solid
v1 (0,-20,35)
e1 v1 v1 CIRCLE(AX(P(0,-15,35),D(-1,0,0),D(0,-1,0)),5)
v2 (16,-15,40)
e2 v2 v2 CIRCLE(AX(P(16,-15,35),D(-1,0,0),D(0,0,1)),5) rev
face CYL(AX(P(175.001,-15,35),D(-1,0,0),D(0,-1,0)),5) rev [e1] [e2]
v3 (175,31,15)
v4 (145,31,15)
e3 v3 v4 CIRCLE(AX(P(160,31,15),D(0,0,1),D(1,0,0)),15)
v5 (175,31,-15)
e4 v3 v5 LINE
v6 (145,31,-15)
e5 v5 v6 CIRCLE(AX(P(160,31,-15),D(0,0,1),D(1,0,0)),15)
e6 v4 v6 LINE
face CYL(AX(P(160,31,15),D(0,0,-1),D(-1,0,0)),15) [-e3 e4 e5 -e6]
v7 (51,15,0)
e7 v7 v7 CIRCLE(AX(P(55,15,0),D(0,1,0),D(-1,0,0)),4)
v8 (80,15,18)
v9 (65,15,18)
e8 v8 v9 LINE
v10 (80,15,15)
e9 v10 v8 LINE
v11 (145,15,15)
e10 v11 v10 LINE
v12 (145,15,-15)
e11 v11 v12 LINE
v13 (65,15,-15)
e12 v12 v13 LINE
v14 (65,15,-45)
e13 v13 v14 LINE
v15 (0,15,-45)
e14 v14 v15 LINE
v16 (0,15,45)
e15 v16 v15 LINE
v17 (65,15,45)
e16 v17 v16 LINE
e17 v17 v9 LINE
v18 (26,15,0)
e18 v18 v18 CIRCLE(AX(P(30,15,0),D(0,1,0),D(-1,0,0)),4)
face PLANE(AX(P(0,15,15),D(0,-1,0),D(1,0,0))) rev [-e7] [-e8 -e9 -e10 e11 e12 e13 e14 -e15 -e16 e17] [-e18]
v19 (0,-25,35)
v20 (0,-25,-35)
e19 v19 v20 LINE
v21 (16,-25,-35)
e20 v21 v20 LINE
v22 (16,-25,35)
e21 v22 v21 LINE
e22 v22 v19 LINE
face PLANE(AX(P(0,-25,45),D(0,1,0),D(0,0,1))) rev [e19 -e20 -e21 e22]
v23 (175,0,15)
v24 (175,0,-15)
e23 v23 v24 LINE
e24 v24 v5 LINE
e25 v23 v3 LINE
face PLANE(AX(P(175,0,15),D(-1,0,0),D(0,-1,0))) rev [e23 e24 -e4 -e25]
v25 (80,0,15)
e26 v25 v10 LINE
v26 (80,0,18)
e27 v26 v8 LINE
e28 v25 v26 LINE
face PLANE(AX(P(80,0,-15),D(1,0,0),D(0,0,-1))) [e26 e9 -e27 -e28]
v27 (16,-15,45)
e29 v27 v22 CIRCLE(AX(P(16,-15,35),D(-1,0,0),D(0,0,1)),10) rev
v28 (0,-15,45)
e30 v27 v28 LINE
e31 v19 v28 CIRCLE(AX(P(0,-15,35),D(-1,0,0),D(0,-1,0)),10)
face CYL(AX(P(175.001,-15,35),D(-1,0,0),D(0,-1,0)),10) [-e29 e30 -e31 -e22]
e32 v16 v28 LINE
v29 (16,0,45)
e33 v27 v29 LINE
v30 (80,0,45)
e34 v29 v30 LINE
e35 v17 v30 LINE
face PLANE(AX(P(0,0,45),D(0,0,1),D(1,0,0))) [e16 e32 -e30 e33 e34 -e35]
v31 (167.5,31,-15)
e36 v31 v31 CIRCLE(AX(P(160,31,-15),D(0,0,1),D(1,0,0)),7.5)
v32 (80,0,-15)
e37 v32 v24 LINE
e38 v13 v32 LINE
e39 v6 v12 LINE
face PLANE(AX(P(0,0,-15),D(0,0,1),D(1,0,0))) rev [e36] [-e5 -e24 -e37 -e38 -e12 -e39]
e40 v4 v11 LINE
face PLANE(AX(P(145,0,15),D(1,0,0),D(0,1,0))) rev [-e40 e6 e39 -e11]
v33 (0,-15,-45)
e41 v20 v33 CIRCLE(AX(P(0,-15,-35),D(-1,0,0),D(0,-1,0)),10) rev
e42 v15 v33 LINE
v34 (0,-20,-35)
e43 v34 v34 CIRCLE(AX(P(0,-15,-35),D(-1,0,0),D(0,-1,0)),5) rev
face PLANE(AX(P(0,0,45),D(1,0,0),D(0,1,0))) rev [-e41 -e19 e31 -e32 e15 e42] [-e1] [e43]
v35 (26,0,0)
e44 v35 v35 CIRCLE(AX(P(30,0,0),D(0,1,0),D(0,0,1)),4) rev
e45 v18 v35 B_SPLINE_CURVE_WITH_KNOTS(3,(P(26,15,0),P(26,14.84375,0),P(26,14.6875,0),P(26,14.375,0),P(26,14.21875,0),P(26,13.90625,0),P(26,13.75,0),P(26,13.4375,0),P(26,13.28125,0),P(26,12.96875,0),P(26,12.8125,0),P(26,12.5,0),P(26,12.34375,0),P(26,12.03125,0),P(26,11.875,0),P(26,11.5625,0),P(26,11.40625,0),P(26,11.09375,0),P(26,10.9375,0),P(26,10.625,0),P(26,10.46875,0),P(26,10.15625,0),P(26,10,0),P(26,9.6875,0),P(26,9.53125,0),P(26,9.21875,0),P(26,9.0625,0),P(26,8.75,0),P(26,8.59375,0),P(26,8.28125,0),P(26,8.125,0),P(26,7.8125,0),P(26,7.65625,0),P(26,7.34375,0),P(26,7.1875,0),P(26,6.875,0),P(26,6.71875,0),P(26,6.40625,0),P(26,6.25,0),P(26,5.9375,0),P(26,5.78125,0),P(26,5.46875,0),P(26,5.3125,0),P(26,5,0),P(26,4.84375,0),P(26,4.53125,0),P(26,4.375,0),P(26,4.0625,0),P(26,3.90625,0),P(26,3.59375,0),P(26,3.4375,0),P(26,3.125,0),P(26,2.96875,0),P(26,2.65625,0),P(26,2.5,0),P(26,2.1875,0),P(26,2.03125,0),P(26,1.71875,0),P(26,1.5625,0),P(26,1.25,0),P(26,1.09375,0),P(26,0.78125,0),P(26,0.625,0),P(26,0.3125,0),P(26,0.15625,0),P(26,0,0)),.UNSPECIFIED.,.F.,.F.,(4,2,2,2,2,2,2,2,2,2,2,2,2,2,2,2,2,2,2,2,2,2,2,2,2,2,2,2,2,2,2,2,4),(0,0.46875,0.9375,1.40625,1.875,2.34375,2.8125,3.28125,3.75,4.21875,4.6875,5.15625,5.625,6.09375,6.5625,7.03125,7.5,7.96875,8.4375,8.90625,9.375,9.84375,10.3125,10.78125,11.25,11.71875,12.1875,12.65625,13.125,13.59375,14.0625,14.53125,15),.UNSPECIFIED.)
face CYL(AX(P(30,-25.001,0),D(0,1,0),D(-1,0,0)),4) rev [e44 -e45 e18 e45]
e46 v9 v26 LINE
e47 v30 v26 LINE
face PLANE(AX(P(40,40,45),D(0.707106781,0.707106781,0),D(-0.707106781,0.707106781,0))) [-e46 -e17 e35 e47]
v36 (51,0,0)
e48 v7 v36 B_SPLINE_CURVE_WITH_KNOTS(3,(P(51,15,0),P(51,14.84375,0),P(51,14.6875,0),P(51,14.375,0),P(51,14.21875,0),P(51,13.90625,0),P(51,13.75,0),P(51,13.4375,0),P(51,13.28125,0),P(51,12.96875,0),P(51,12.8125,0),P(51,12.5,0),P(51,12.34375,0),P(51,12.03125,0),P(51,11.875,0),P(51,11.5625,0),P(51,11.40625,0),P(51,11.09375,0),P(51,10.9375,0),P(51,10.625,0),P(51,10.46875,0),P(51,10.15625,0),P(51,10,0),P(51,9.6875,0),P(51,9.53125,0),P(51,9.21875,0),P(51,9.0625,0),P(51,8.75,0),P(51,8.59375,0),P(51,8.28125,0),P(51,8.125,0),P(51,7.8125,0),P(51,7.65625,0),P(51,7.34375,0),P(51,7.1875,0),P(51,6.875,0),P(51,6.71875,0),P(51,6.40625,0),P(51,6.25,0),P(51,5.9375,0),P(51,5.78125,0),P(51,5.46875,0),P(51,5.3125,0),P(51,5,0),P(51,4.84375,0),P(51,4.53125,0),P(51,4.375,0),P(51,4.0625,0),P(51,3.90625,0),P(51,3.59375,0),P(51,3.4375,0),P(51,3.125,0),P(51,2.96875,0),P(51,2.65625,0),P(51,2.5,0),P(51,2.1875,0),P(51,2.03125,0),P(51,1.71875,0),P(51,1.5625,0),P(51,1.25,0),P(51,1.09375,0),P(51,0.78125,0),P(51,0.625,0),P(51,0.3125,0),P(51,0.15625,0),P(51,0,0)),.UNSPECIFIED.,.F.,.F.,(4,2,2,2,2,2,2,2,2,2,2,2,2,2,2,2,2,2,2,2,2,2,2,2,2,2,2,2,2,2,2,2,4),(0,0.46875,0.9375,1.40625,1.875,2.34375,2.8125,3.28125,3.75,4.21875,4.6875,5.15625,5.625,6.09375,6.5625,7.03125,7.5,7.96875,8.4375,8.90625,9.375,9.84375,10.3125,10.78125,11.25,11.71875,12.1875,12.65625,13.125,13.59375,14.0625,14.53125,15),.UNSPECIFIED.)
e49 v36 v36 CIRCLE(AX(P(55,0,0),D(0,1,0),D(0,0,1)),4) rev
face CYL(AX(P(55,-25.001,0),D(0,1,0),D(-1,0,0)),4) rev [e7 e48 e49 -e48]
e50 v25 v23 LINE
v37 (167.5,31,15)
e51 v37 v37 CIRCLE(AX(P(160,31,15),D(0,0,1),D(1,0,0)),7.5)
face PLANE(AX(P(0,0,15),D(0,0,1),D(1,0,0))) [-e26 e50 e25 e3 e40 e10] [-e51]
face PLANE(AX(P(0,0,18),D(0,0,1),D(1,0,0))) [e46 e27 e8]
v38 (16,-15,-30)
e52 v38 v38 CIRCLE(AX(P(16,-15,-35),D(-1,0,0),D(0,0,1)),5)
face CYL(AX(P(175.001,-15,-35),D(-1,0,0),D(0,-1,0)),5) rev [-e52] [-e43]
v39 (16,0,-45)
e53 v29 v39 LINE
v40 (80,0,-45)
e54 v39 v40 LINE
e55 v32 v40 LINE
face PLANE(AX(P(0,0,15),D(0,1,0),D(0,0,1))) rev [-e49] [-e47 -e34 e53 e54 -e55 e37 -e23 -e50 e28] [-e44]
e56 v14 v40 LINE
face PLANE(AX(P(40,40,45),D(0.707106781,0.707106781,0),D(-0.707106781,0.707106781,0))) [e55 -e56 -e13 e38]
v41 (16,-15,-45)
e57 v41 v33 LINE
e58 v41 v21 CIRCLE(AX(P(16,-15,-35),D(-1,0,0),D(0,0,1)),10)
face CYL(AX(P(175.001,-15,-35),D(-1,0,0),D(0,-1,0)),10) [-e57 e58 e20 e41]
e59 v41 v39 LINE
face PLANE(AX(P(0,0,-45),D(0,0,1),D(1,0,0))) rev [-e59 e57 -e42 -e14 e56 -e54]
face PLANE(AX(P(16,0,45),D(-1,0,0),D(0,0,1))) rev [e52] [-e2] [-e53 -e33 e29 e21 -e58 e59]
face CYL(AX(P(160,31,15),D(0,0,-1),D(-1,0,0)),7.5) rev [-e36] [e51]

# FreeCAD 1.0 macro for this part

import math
import FreeCAD as App
import Part
import Sketcher

V = App.Vector
Q = App.Units.Quantity

doc = App.newDocument("Part")
params = doc.addObject("Spreadsheet::Sheet", "Params")
for row, (alias, value) in enumerate([
    ("sketch1_diameter", "15 mm"),
    ("sketch1_radius", "15 mm"),
    ("sketch1_width", "65 mm"),
    ("sketch1_height", "15 mm"),
    ("sketch1_height2", "31 mm"),
    ("pad1_length", "30 mm"),
    ("sketch2_width", "65 mm"),
    ("sketch2_width2", "16 mm"),
    ("sketch2_width3", "64 mm"),
    ("sketch2_height", "40 mm"),
    ("sketch2_height2", "25 mm"),
    ("pad2_length", "90 mm"),
    ("sketch3_width", "15 mm"),
    ("pad3_length", "18 mm"),
    ("pad3_length2", "15 mm"),
    ("sketch4_diameter", "8 mm"),
    ("sketch5_diameter", "8 mm"),
    ("sketch6_diameter", "10 mm"),
    ("sketch7_radius", "10 mm"),
    ("sketch8_diameter", "10 mm"),
    ("sketch9_radius", "10 mm"),
], start=1):
    params.set(f"A{row}", alias)
    params.set(f"B{row}", "=" + value)
    params.setAlias(f"B{row}", alias)

body = doc.addObject("PartDesign::Body", "Body")

sketch1 = doc.addObject("Sketcher::SketchObject", "Sketch")
body.addObject(sketch1)
sketch1.AttachmentSupport = (doc.XY_Plane, [""])
sketch1.MapMode = "FlatFace"
sketch1.addGeometry([
    Part.LineSegment(V(145, 15, 0), V(80, 15, 0)),
    Part.LineSegment(V(80, 15, 0), V(80, 0, 0)),
    Part.LineSegment(V(80, 0, 0), V(175, 0, 0)),
    Part.LineSegment(V(175, 0, 0), V(175, 31, 0)),
    Part.ArcOfCircle(Part.Circle(V(160, 31, 0), V(0, 0, 1), 15), math.radians(0), math.radians(180)),
    Part.LineSegment(V(145, 31, 0), V(145, 15, 0)),
    Part.Circle(V(160, 31, 0), V(0, 0, 1), 8),
], False)
sketch1.addConstraint([
    Sketcher.Constraint("Coincident", 0, 2, 1, 1),
    Sketcher.Constraint("Coincident", 1, 2, 2, 1),
    Sketcher.Constraint("Coincident", 2, 2, 3, 1),
    Sketcher.Constraint("Tangent", 3, 2, 4, 1),
    Sketcher.Constraint("Tangent", 4, 2, 5, 1),
    Sketcher.Constraint("Coincident", 5, 2, 0, 1),
    Sketcher.Constraint("Horizontal", 0),
    Sketcher.Constraint("Vertical", 1),
    Sketcher.Constraint("Horizontal", 2),
    Sketcher.Constraint("Vertical", 3),
    Sketcher.Constraint("Vertical", 5),
    Sketcher.Constraint("Coincident", 6, 3, 4, 3),
    Sketcher.Constraint("PointOnObject", 1, 2, -1),
    Sketcher.Constraint("Diameter", 6, Q("15 mm")),
    Sketcher.Constraint("Radius", 4, Q("15 mm")),
    Sketcher.Constraint("DistanceX", 0, 2, 0, 1, Q("65 mm")),
    Sketcher.Constraint("DistanceY", 1, 2, 1, 1, Q("15 mm")),
    Sketcher.Constraint("DistanceY", 3, 1, 3, 2, Q("31 mm")),
    Sketcher.Constraint("DistanceX", -1, 1, 4, 3, Q("160 mm")),
])
sketch1.setExpression("Constraints[13]", "Params.sketch1_diameter")
sketch1.setExpression("Constraints[14]", "Params.sketch1_radius")
sketch1.setExpression("Constraints[15]", "Params.sketch1_width")
sketch1.setExpression("Constraints[16]", "Params.sketch1_height")
sketch1.setExpression("Constraints[17]", "Params.sketch1_height2")
pad1 = doc.addObject("PartDesign::Pad", "Pad")
body.addObject(pad1)
pad1.Profile = sketch1
pad1.setExpression("Length", "Params.pad1_length")
pad1.Midplane = True
body2 = doc.addObject("PartDesign::Body", "Body001")

sketch2 = doc.addObject("Sketcher::SketchObject", "Sketch001")
body2.addObject(sketch2)
sketch2.AttachmentSupport = (doc.getObject("XY_Plane001"), [""])
sketch2.MapMode = "FlatFace"
sketch2.addGeometry([
    Part.LineSegment(V(65, 15, 0), V(0, 15, 0)),
    Part.LineSegment(V(0, 15, 0), V(0, -25, 0)),
    Part.LineSegment(V(0, -25, 0), V(16, -25, 0)),
    Part.LineSegment(V(16, -25, 0), V(16, 0, 0)),
    Part.LineSegment(V(16, 0, 0), V(80, 0, 0)),
    Part.LineSegment(V(80, 0, 0), V(65, 15, 0)),
], False)
sketch2.addConstraint([
    Sketcher.Constraint("Coincident", 0, 2, 1, 1),
    Sketcher.Constraint("Coincident", 1, 2, 2, 1),
    Sketcher.Constraint("Coincident", 2, 2, 3, 1),
    Sketcher.Constraint("Coincident", 3, 2, 4, 1),
    Sketcher.Constraint("Coincident", 4, 2, 5, 1),
    Sketcher.Constraint("Coincident", 5, 2, 0, 1),
    Sketcher.Constraint("Horizontal", 0),
    Sketcher.Constraint("Vertical", 1),
    Sketcher.Constraint("Horizontal", 2),
    Sketcher.Constraint("Vertical", 3),
    Sketcher.Constraint("Horizontal", 4),
    Sketcher.Constraint("PointOnObject", 0, 2, -2),
    Sketcher.Constraint("PointOnObject", 3, 2, -1),
    Sketcher.Constraint("DistanceX", 0, 2, 0, 1, Q("65 mm")),
    Sketcher.Constraint("DistanceX", 2, 1, 2, 2, Q("16 mm")),
    Sketcher.Constraint("DistanceX", 4, 1, 4, 2, Q("64 mm")),
    Sketcher.Constraint("DistanceY", 1, 2, 1, 1, Q("40 mm")),
    Sketcher.Constraint("DistanceY", 3, 1, 3, 2, Q("25 mm")),
])
sketch2.setExpression("Constraints[13]", "Params.sketch2_width")
sketch2.setExpression("Constraints[14]", "Params.sketch2_width2")
sketch2.setExpression("Constraints[15]", "Params.sketch2_width3")
sketch2.setExpression("Constraints[16]", "Params.sketch2_height")
sketch2.setExpression("Constraints[17]", "Params.sketch2_height2")
pad2 = doc.addObject("PartDesign::Pad", "Pad001")
body2.addObject(pad2)
pad2.Profile = sketch2
pad2.setExpression("Length", "Params.pad2_length")
pad2.Midplane = True
body.AllowCompound = True
doc.recompute()

boolean = doc.addObject("PartDesign::Boolean", "Boolean")
body.addObject(boolean)
boolean.Type = "Fuse"
boolean.addObjects([body2])

sketch3 = doc.addObject("Sketcher::SketchObject", "Sketch002")
body.addObject(sketch3)
sketch3.AttachmentSupport = (doc.XY_Plane, [""])
sketch3.MapMode = "FlatFace"
sketch3.addGeometry([
    Part.LineSegment(V(80, 15, 0), V(65, 15, 0)),
    Part.LineSegment(V(65, 15, 0), V(80, 0, 0)),
    Part.LineSegment(V(80, 0, 0), V(80, 15, 0)),
], False)
sketch3.addConstraint([
    Sketcher.Constraint("Coincident", 0, 2, 1, 1),
    Sketcher.Constraint("Coincident", 1, 2, 2, 1),
    Sketcher.Constraint("Coincident", 2, 2, 0, 1),
    Sketcher.Constraint("Horizontal", 0),
    Sketcher.Constraint("Vertical", 2),
    Sketcher.Constraint("PointOnObject", 1, 2, -1),
    Sketcher.Constraint("Equal", 0, 2),
    Sketcher.Constraint("DistanceX", 0, 2, 0, 1, Q("15 mm")),
    Sketcher.Constraint("DistanceX", -1, 1, 0, 2, Q("65 mm")),
])
sketch3.setExpression("Constraints[7]", "Params.sketch3_width")
pad3 = doc.addObject("PartDesign::Pad", "Pad002")
body.addObject(pad3)
pad3.Profile = sketch3
pad3.Type = "TwoLengths"
pad3.setExpression("Length", "Params.pad3_length")
pad3.setExpression("Length2", "Params.pad3_length2")

sketch4 = doc.addObject("Sketcher::SketchObject", "Sketch003")
body.addObject(sketch4)
sketch4.AttachmentSupport = (doc.XZ_Plane, [""])
sketch4.MapMode = "FlatFace"
sketch4.AttachmentOffset = App.Placement(V(0, 0, -15), App.Rotation())
sketch4.addGeometry(Part.Circle(V(55, 0, 0), V(0, 0, 1), 4), False)
sketch4.addConstraint([
    Sketcher.Constraint("PointOnObject", 0, 3, -1),
    Sketcher.Constraint("Diameter", 0, Q("8 mm")),
    Sketcher.Constraint("DistanceX", -1, 1, 0, 3, Q("55 mm")),
])
sketch4.setExpression("Constraints[1]", "Params.sketch4_diameter")
pocket1 = doc.addObject("PartDesign::Pocket", "Pocket")
body.addObject(pocket1)
pocket1.Profile = sketch4
pocket1.Type = "UpToFirst"
pocket1.Reversed = True

sketch5 = doc.addObject("Sketcher::SketchObject", "Sketch004")
body.addObject(sketch5)
sketch5.AttachmentSupport = (doc.XZ_Plane, [""])
sketch5.MapMode = "FlatFace"
sketch5.AttachmentOffset = App.Placement(V(0, 0, -15), App.Rotation())
sketch5.addGeometry(Part.Circle(V(30, 0, 0), V(0, 0, 1), 4), False)
sketch5.addConstraint([
    Sketcher.Constraint("PointOnObject", 0, 3, -1),
    Sketcher.Constraint("Diameter", 0, Q("8 mm")),
    Sketcher.Constraint("DistanceX", -1, 1, 0, 3, Q("30 mm")),
])
sketch5.setExpression("Constraints[1]", "Params.sketch5_diameter")
pocket2 = doc.addObject("PartDesign::Pocket", "Pocket001")
body.addObject(pocket2)
pocket2.Profile = sketch5
pocket2.Type = "UpToFirst"
pocket2.Reversed = True

sketch6 = doc.addObject("Sketcher::SketchObject", "Sketch005")
body.addObject(sketch6)
sketch6.AttachmentSupport = (doc.YZ_Plane, [""])
sketch6.MapMode = "FlatFace"
sketch6.addGeometry(Part.Circle(V(-15, 35, 0), V(0, 0, 1), 5), False)
sketch6.addConstraint([
    Sketcher.Constraint("Diameter", 0, Q("10 mm")),
    Sketcher.Constraint("DistanceX", 0, 3, -1, 1, Q("15 mm")),
    Sketcher.Constraint("DistanceY", -1, 1, 0, 3, Q("35 mm")),
])
sketch6.setExpression("Constraints[0]", "Params.sketch6_diameter")
pocket3 = doc.addObject("PartDesign::Pocket", "Pocket002")
body.addObject(pocket3)
pocket3.Profile = sketch6
pocket3.Type = "UpToFirst"
pocket3.Reversed = True

sketch7 = doc.addObject("Sketcher::SketchObject", "Sketch006")
body.addObject(sketch7)
sketch7.AttachmentSupport = (doc.YZ_Plane, [""])
sketch7.MapMode = "FlatFace"
sketch7.addGeometry([
    Part.LineSegment(V(-25, 45, 0), V(-15, 45, 0)),
    Part.ArcOfCircle(Part.Circle(V(-15, 35, 0), V(0, 0, 1), 10), math.radians(90), math.radians(180)),
    Part.LineSegment(V(-25, 35, 0), V(-25, 45, 0)),
], False)
sketch7.addConstraint([
    Sketcher.Constraint("Tangent", 0, 2, 1, 1),
    Sketcher.Constraint("Tangent", 1, 2, 2, 1),
    Sketcher.Constraint("Coincident", 2, 2, 0, 1),
    Sketcher.Constraint("Horizontal", 0),
    Sketcher.Constraint("Vertical", 2),
    Sketcher.Constraint("Radius", 1, Q("10 mm")),
    Sketcher.Constraint("DistanceX", 1, 3, -1, 1, Q("15 mm")),
    Sketcher.Constraint("DistanceY", -1, 1, 1, 3, Q("35 mm")),
])
sketch7.setExpression("Constraints[5]", "Params.sketch7_radius")
pocket4 = doc.addObject("PartDesign::Pocket", "Pocket003")
body.addObject(pocket4)
pocket4.Profile = sketch7
pocket4.Type = "UpToFirst"
pocket4.Reversed = True

sketch8 = doc.addObject("Sketcher::SketchObject", "Sketch007")
body.addObject(sketch8)
sketch8.AttachmentSupport = (doc.YZ_Plane, [""])
sketch8.MapMode = "FlatFace"
sketch8.addGeometry(Part.Circle(V(-15, -35, 0), V(0, 0, 1), 5), False)
sketch8.addConstraint([
    Sketcher.Constraint("Diameter", 0, Q("10 mm")),
    Sketcher.Constraint("DistanceX", 0, 3, -1, 1, Q("15 mm")),
    Sketcher.Constraint("DistanceY", 0, 3, -1, 1, Q("35 mm")),
])
sketch8.setExpression("Constraints[0]", "Params.sketch8_diameter")
pocket5 = doc.addObject("PartDesign::Pocket", "Pocket004")
body.addObject(pocket5)
pocket5.Profile = sketch8
pocket5.Type = "UpToFirst"
pocket5.Reversed = True

sketch9 = doc.addObject("Sketcher::SketchObject", "Sketch008")
body.addObject(sketch9)
sketch9.AttachmentSupport = (doc.YZ_Plane, [""])
sketch9.MapMode = "FlatFace"
sketch9.addGeometry([
    Part.LineSegment(V(-25, -45, 0), V(-25, -35, 0)),
    Part.ArcOfCircle(Part.Circle(V(-15, -35, 0), V(0, 0, 1), 10), math.radians(180), math.radians(270)),
    Part.LineSegment(V(-15, -45, 0), V(-25, -45, 0)),
], False)
sketch9.addConstraint([
    Sketcher.Constraint("Tangent", 0, 2, 1, 1),
    Sketcher.Constraint("Tangent", 1, 2, 2, 1),
    Sketcher.Constraint("Coincident", 2, 2, 0, 1),
    Sketcher.Constraint("Vertical", 0),
    Sketcher.Constraint("Horizontal", 2),
    Sketcher.Constraint("Radius", 1, Q("10 mm")),
    Sketcher.Constraint("DistanceX", 1, 3, -1, 1, Q("15 mm")),
    Sketcher.Constraint("DistanceY", 1, 3, -1, 1, Q("35 mm")),
])
sketch9.setExpression("Constraints[5]", "Params.sketch9_radius")
pocket6 = doc.addObject("PartDesign::Pocket", "Pocket005")
body.addObject(pocket6)
pocket6.Profile = sketch9
pocket6.Type = "UpToFirst"
pocket6.Reversed = True

doc.recompute()
